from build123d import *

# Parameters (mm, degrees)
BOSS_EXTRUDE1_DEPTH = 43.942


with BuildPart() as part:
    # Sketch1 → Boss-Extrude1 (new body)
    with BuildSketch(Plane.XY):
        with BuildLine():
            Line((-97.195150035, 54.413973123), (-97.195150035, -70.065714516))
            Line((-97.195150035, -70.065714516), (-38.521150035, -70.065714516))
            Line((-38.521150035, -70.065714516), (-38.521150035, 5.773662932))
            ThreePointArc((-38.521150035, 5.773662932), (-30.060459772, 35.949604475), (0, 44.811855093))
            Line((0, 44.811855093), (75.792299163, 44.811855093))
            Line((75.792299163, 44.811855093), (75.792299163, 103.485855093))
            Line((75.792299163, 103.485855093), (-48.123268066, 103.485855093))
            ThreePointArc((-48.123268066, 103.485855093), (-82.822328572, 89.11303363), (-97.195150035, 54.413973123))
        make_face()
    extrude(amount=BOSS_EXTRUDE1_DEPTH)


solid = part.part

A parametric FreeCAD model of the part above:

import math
import FreeCAD as App
import Part
import Sketcher
Q = App.Units.Quantity

doc = App.newDocument("Part")
body = doc.addObject("PartDesign::Body", "Body")

# Sketch on XY plane
sketch1 = body.newObject("Sketcher::SketchObject", "Sketch")
sketch1.AttachmentSupport = (doc.getObject("XY_Plane"), [""])
sketch1.MapMode = "FlatFace"
sketch1.addGeometry([
    Part.LineSegment(App.Vector(-97, 54, 0), App.Vector(-97, -70, 0)),  # 0
    Part.LineSegment(App.Vector(-97, -70, 0), App.Vector(-39, -70, 0)),  # 1
    Part.LineSegment(App.Vector(-39, -70, 0), App.Vector(-39, 6, 0)),  # 2
    Part.ArcOfCircle(Part.Circle(App.Vector(-7, 13, 0), App.Vector(0, 0, 1), 32), math.radians(77), math.radians(193)),  # 3
    Part.LineSegment(App.Vector(0, 45, 0), App.Vector(76, 45, 0)),  # 4
    Part.LineSegment(App.Vector(76, 45, 0), App.Vector(76, 103, 0)),  # 5
    Part.LineSegment(App.Vector(76, 103, 0), App.Vector(-48, 103, 0)),  # 6
    Part.ArcOfCircle(Part.Circle(App.Vector(-48, 54, 0), App.Vector(0, 0, 1), 49), math.radians(90), math.radians(180)),  # 7
], False)
sketch1.addConstraint([
    Sketcher.Constraint("Coincident", 0, 2, 1, 1),
    Sketcher.Constraint("Coincident", 1, 2, 2, 1),
    Sketcher.Constraint("Coincident", 2, 2, 3, 2),
    Sketcher.Constraint("Coincident", 3, 1, 4, 1),
    Sketcher.Constraint("Coincident", 4, 2, 5, 1),
    Sketcher.Constraint("Coincident", 5, 2, 6, 1),
    Sketcher.Constraint("Tangent", 6, 2, 7, 1),
    Sketcher.Constraint("Tangent", 7, 2, 0, 1),
    Sketcher.Constraint("Vertical", 0),
    Sketcher.Constraint("Horizontal", 1),
    Sketcher.Constraint("Vertical", 2),
    Sketcher.Constraint("Horizontal", 4),
    Sketcher.Constraint("Vertical", 5),
    Sketcher.Constraint("Horizontal", 6),
    Sketcher.Constraint("PointOnObject", 3, 1, -2),
    Sketcher.Constraint("Equal", 1, 5),
    Sketcher.Constraint("DistanceX", 1, 1, 1, 2, Q("2.31 in")),
    Sketcher.Constraint("Radius", 7, Q("49.071882 mm")),
    Sketcher.Constraint("DistanceX", 4, 1, 4, 2, Q("75.792299 mm")),
    Sketcher.Constraint("Radius", 3, Q("32.366728 mm")),
    Sketcher.Constraint("DistanceX", 7, 3, 3, 3, Q("41.101601 mm")),
    Sketcher.Constraint("DistanceX", 6, 2, 6, 1, Q("123.915567 mm")),
    Sketcher.Constraint("DistanceY", 0, 2, 0, 1, Q("124.479688 mm")),
    Sketcher.Constraint("DistanceY", -1, 1, 3, 3, Q("13.215949 mm")),
])
pad1 = body.newObject("PartDesign::Pad", "Pad")
pad1.Profile = sketch1
pad1.Length = Q("1.73 in")

doc.recompute()
